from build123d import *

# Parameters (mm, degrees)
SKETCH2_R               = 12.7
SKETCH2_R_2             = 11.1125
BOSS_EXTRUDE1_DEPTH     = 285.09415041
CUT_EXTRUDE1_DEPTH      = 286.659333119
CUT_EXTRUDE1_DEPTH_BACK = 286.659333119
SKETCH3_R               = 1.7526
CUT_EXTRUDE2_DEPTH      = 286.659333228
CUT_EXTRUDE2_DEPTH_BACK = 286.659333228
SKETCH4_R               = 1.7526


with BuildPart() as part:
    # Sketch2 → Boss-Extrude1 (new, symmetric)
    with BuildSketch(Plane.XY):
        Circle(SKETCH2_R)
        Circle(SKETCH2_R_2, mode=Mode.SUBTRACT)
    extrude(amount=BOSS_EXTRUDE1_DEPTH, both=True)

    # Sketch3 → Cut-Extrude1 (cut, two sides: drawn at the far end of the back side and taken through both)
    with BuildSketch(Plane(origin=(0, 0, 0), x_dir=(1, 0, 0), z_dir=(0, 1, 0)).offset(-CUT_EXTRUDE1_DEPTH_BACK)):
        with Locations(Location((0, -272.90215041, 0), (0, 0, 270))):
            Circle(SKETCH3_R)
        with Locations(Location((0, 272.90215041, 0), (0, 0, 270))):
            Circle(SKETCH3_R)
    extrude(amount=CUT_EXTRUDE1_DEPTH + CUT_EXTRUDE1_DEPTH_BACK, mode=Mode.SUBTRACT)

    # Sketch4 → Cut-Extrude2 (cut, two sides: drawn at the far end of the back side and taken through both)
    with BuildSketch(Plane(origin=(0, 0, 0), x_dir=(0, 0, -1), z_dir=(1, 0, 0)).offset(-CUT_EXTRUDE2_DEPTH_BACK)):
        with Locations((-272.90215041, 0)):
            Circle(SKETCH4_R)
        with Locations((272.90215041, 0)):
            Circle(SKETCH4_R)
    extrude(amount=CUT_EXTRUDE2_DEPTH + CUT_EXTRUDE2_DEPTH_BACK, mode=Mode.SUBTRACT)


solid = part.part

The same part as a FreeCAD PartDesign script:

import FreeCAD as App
import Part
import Sketcher
from FreeCAD import Vector
Q = App.Units.Quantity

doc = App.newDocument("Part")
body = doc.addObject("PartDesign::Body", "Body")

# Sketch on XY plane
sketch1 = body.newObject("Sketcher::SketchObject", "Sketch")
sketch1.AttachmentSupport = (doc.getObject("XY_Plane"), [""])
sketch1.MapMode = "FlatFace"
sketch1.addGeometry([
    Part.Circle(Vector(0, 0, 0), Vector(0, 0, 1), 13),
    Part.Circle(Vector(0, 0, 0), Vector(0, 0, 1), 11),
], False)
sketch1.addConstraint([
    Sketcher.Constraint("Coincident", 0, 3, -1, 1),
    Sketcher.Constraint("Coincident", 1, 3, -1, 1),
    Sketcher.Constraint("Diameter", 0, Q("1 in")),
    Sketcher.Constraint("Diameter", 1, Q("0.875 in")),
])
pad1 = body.newObject("PartDesign::Pad", "Pad")
pad1.Profile = sketch1
pad1.Length = 570.188301
pad1.Midplane = True

# Sketch on XZ plane
sketch2 = body.newObject("Sketcher::SketchObject", "Sketch001")
sketch2.AttachmentSupport = (doc.getObject("XZ_Plane"), [""])
sketch2.MapMode = "FlatFace"
sketch2.addGeometry([
    Part.Circle(Vector(0, 272.9, 0), Vector(0, 0, 1), 1.8),
    Part.Circle(Vector(0, -272.9, 0), Vector(0, 0, 1), 1.8),
], False)
sketch2.addConstraint([
    Sketcher.Constraint("Equal", 0, 1),
    Sketcher.Constraint("Symmetric", 0, 3, 1, 3, -1, 1),
    Sketcher.Constraint("PointOnObject", 0, 3, -2),
    Sketcher.Constraint("Diameter", 0, Q("0.138 in")),
    Sketcher.Constraint("DistanceY", 1, 3, 0, 3, 545.804301),
])
pocket1 = body.newObject("PartDesign::Pocket", "Pocket")
pocket1.Profile = sketch2
pocket1.Type = "ThroughAll"
pocket1.Midplane = True

# Sketch on YZ plane
sketch3 = body.newObject("Sketcher::SketchObject", "Sketch002")
sketch3.AttachmentSupport = (doc.getObject("YZ_Plane"), [""])
sketch3.MapMode = "FlatFace"
sketch3.addGeometry([
    Part.Circle(Vector(0, 272.9, 0), Vector(0, 0, 1), 1.8),
    Part.Circle(Vector(0, -272.9, 0), Vector(0, 0, 1), 1.8),
], False)
sketch3.addConstraint([
    Sketcher.Constraint("Equal", 0, 1),
    Sketcher.Constraint("Symmetric", 0, 3, 1, 3, -1, 1),
    Sketcher.Constraint("PointOnObject", 0, 3, -2),
    Sketcher.Constraint("Diameter", 0, Q("0.138 in")),
    Sketcher.Constraint("DistanceY", 1, 3, 0, 3, 545.804301),
])
pocket2 = body.newObject("PartDesign::Pocket", "Pocket001")
pocket2.Profile = sketch3
pocket2.Type = "ThroughAll"
pocket2.Midplane = True

doc.recompute()
